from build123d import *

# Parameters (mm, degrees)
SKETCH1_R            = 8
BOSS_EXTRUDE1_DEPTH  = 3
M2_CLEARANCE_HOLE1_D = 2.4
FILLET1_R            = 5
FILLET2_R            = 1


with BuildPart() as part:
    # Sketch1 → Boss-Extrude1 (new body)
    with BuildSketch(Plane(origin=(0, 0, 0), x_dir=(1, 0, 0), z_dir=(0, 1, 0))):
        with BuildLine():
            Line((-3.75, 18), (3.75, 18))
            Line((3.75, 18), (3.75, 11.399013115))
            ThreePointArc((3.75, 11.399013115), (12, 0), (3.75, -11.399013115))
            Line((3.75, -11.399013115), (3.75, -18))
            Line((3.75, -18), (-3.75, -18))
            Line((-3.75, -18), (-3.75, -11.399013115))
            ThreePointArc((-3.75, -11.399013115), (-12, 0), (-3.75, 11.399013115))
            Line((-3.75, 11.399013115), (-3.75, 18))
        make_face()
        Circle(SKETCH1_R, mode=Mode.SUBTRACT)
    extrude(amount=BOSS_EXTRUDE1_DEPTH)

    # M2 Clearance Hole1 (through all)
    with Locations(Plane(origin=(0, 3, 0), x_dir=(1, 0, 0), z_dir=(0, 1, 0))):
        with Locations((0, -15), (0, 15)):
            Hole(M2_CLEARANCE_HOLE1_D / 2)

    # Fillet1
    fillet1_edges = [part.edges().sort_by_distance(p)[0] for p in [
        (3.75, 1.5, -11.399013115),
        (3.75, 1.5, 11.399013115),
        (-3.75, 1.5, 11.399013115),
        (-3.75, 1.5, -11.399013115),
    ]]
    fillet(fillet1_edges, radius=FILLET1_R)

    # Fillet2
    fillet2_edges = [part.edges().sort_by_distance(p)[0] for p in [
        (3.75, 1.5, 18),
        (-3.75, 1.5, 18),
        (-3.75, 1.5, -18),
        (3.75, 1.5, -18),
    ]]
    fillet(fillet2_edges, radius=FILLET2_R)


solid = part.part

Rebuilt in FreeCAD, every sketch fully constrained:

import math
import FreeCAD as App
import Part
import Sketcher


def edges_at(feature, points):
    """Names of the edges that pass closest to the given points."""
    edges = feature.Shape.Edges
    near = lambda p: min(range(len(edges)), key=lambda i: edges[i].distToShape(Part.Vertex(*p))[0])
    return sorted({f"Edge{near(p) + 1}" for p in points})

doc = App.newDocument("Part")
body = doc.addObject("PartDesign::Body", "Body")

# Sketch on XZ plane
sketch1 = body.newObject("Sketcher::SketchObject", "Sketch")
sketch1.AttachmentSupport = (doc.getObject("XZ_Plane"), [""])
sketch1.MapMode = "FlatFace"
sketch1.addGeometry([
    Part.LineSegment(App.Vector(4, -18, 0), App.Vector(-4, -18, 0)),  # 0
    Part.LineSegment(App.Vector(-4, -18, 0), App.Vector(-4, -11, 0)),  # 1
    Part.ArcOfCircle(Part.Circle(App.Vector(0, 0, 0), App.Vector(0, 0, 1), 12), math.radians(108), math.radians(252)),  # 2
    Part.LineSegment(App.Vector(-4, 11, 0), App.Vector(-4, 18, 0)),  # 3
    Part.LineSegment(App.Vector(-4, 18, 0), App.Vector(4, 18, 0)),  # 4
    Part.LineSegment(App.Vector(4, 18, 0), App.Vector(4, 11, 0)),  # 5
    Part.ArcOfCircle(Part.Circle(App.Vector(0, 0, 0), App.Vector(0, 0, 1), 12), math.radians(-72), math.radians(72)),  # 6
    Part.LineSegment(App.Vector(4, -11, 0), App.Vector(4, -18, 0)),  # 7
    Part.Circle(App.Vector(0, 0, 0), App.Vector(0, 0, 1), 8),  # 8
], False)
sketch1.addConstraint([
    Sketcher.Constraint("Coincident", 0, 2, 1, 1),
    Sketcher.Constraint("Coincident", 1, 2, 2, 2),
    Sketcher.Constraint("Coincident", 2, 1, 3, 1),
    Sketcher.Constraint("Coincident", 3, 2, 4, 1),
    Sketcher.Constraint("Coincident", 4, 2, 5, 1),
    Sketcher.Constraint("Coincident", 5, 2, 6, 2),
    Sketcher.Constraint("Coincident", 6, 1, 7, 1),
    Sketcher.Constraint("Coincident", 7, 2, 0, 1),
    Sketcher.Constraint("Horizontal", 0),
    Sketcher.Constraint("Vertical", 1),
    Sketcher.Constraint("Vertical", 3),
    Sketcher.Constraint("Horizontal", 4),
    Sketcher.Constraint("Vertical", 5),
    Sketcher.Constraint("Vertical", 7),
    Sketcher.Constraint("Coincident", 2, 3, -1, 1),
    Sketcher.Constraint("Coincident", 6, 3, -1, 1),
    Sketcher.Constraint("Coincident", 8, 3, -1, 1),
    Sketcher.Constraint("Equal", 2, 6),
    Sketcher.Constraint("Symmetric", 0, 2, 4, 2, -1, 1),
    Sketcher.Constraint("Horizontal", 2, 1, 5, 2),
    Sketcher.Constraint("Horizontal", 1, 2, 6, 1),
    Sketcher.Constraint("Diameter", 8, 16.0),
    Sketcher.Constraint("Radius", 2, 12.0),
    Sketcher.Constraint("DistanceX", 0, 2, 0, 1, 7.5),
    Sketcher.Constraint("DistanceY", 0, 2, -1, 1, 18.0),
])
pad1 = body.newObject("PartDesign::Pad", "Pad")
pad1.Profile = sketch1
pad1.Length = 3
pad1.Reversed = True

# Sketch on XZ plane
sketch2 = body.newObject("Sketcher::SketchObject", "Sketch001")
sketch2.AttachmentSupport = (doc.getObject("XZ_Plane"), [""])
sketch2.MapMode = "FlatFace"
sketch2.AttachmentOffset = App.Placement(App.Vector(0, 0, -3), App.Rotation())
sketch2.addGeometry([
    Part.Circle(App.Vector(0, 15, 0), App.Vector(0, 0, 1), 1.2),
    Part.Circle(App.Vector(0, -15, 0), App.Vector(0, 0, 1), 1.2),
], False)
sketch2.addConstraint([
    Sketcher.Constraint("Equal", 0, 1),
    Sketcher.Constraint("Symmetric", 0, 3, 1, 3, -1, 1),
    Sketcher.Constraint("PointOnObject", 0, 3, -2),
    Sketcher.Constraint("Diameter", 0, 2.4),
    Sketcher.Constraint("DistanceY", -1, 1, 0, 3, 15.0),
])
doc.recompute()
hole = body.newObject("PartDesign::Hole", "Hole")
hole.Profile = sketch2
hole.ThreadType = "None"
hole.Diameter = 2.4
hole.DepthType = "ThroughAll"
hole.Reversed = True
doc.recompute()

fillet = body.newObject("PartDesign::Fillet", "Fillet")
fillet.Base = (hole, edges_at(hole, [
    (3.75, 1.5, -11.399),
    (3.75, 1.5, 11.399),
    (-3.75, 1.5, 11.399),
    (-3.75, 1.5, -11.399),
]))
fillet.Radius = 5
doc.recompute()

fillet2 = body.newObject("PartDesign::Fillet", "Fillet001")
fillet2.Base = (fillet, edges_at(fillet, [
    (3.75, 1.5, 18),
    (-3.75, 1.5, 18),
    (-3.75, 1.5, -18),
    (3.75, 1.5, -18),
]))
fillet2.Radius = 1

doc.recompute()
